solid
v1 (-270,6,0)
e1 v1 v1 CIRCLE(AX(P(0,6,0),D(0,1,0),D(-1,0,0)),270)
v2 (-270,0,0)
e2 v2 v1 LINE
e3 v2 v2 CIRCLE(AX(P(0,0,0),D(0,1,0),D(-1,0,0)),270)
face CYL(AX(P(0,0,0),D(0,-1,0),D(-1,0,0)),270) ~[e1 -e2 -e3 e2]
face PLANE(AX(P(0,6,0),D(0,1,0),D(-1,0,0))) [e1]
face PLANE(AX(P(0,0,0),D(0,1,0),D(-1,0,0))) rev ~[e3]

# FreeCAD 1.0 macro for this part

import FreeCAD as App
import Part
import Sketcher

doc = App.newDocument("Part")
body = doc.addObject("PartDesign::Body", "Body")

sketch1 = body.newObject("Sketcher::SketchObject", "Sketch")
sketch1.AttachmentSupport = (doc.getObject("XZ_Plane"), [""])
sketch1.MapMode = "FlatFace"
sketch1.addGeometry(Part.Circle(App.Vector(0, 0, 0), App.Vector(0, 0, 1), 270), False)
sketch1.addConstraint([
    Sketcher.Constraint("Coincident", 0, 3, -1, 1),
    Sketcher.Constraint("Diameter", 0, 540.0),
])
pad1 = body.newObject("PartDesign::Pad", "Pad")
pad1.Profile = sketch1
pad1.Length = 6
pad1.Reversed = True

doc.recompute()
